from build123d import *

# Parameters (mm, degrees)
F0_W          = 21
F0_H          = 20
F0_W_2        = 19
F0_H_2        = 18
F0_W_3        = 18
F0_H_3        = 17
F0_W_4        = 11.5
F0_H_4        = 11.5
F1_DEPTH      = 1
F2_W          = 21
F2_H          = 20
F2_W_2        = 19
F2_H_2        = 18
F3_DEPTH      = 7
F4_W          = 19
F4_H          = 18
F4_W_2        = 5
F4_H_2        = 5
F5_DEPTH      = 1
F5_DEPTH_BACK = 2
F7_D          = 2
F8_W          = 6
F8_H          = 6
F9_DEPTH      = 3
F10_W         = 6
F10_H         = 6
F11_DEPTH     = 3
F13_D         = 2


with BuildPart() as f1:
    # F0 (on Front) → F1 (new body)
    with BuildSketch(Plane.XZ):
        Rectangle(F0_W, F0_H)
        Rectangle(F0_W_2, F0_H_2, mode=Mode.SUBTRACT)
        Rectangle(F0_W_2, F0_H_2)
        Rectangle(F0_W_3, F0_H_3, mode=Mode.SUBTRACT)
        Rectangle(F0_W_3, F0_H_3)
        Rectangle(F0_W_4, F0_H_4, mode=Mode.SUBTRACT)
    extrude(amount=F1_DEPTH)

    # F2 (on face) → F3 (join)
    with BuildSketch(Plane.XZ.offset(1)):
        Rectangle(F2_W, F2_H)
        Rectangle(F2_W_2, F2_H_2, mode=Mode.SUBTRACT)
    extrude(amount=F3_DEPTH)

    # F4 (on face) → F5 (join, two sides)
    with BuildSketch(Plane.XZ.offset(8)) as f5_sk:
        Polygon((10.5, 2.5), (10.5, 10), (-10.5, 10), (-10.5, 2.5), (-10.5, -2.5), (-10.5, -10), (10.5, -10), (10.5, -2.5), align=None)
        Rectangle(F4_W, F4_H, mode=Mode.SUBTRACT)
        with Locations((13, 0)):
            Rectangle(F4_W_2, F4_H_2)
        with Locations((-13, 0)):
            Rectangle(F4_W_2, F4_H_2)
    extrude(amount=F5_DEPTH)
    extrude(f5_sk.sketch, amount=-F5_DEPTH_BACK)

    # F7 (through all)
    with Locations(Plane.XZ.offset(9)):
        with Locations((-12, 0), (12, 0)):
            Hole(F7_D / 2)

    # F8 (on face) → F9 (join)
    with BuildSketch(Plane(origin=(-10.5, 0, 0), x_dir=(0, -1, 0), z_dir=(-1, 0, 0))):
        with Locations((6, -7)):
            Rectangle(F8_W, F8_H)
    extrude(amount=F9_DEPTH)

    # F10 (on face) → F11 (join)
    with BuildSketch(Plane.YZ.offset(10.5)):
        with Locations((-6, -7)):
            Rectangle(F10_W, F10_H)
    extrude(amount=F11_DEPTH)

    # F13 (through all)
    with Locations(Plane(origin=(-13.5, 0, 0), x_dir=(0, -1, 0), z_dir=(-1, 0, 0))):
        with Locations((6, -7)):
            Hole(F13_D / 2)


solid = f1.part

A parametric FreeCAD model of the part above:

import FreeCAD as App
import Part
import Sketcher

V = App.Vector

doc = App.newDocument("Part")
body = doc.addObject("PartDesign::Body", "Body")

# Sketch on XZ plane
sketch1 = body.newObject("Sketcher::SketchObject", "Sketch")
sketch1.AttachmentSupport = (doc.getObject("XZ_Plane"), [""])
sketch1.MapMode = "FlatFace"
sketch1.addGeometry(Part.LineSegment(V(-10.5, 10, 0), V(-10.5, -10, 0)), False)
sketch1.addGeometry(Part.LineSegment(V(-10.5, -10, 0), V(10.5, -10, 0)), False)
sketch1.addGeometry(Part.LineSegment(V(10.5, -10, 0), V(10.5, 10, 0)), False)
sketch1.addGeometry(Part.LineSegment(V(10.5, 10, 0), V(-10.5, 10, 0)), False)
sketch1.addGeometry(Part.LineSegment(V(5.75, -5.75, 0), V(-5.75, -5.75, 0)), False)
sketch1.addGeometry(Part.LineSegment(V(-5.75, -5.75, 0), V(-5.75, 5.75, 0)), False)
sketch1.addGeometry(Part.LineSegment(V(-5.75, 5.75, 0), V(5.75, 5.75, 0)), False)
sketch1.addGeometry(Part.LineSegment(V(5.75, 5.75, 0), V(5.75, -5.75, 0)), False)
sketch1.addConstraint(Sketcher.Constraint("Coincident", 0, 2, 1, 1))
sketch1.addConstraint(Sketcher.Constraint("Coincident", 1, 2, 2, 1))
sketch1.addConstraint(Sketcher.Constraint("Coincident", 2, 2, 3, 1))
sketch1.addConstraint(Sketcher.Constraint("Coincident", 3, 2, 0, 1))
sketch1.addConstraint(Sketcher.Constraint("Coincident", 4, 2, 5, 1))
sketch1.addConstraint(Sketcher.Constraint("Coincident", 5, 2, 6, 1))
sketch1.addConstraint(Sketcher.Constraint("Coincident", 6, 2, 7, 1))
sketch1.addConstraint(Sketcher.Constraint("Coincident", 7, 2, 4, 1))
sketch1.addConstraint(Sketcher.Constraint("Vertical", 0))
sketch1.addConstraint(Sketcher.Constraint("Horizontal", 1))
sketch1.addConstraint(Sketcher.Constraint("Vertical", 2))
sketch1.addConstraint(Sketcher.Constraint("Horizontal", 3))
sketch1.addConstraint(Sketcher.Constraint("Horizontal", 4))
sketch1.addConstraint(Sketcher.Constraint("Vertical", 5))
sketch1.addConstraint(Sketcher.Constraint("Horizontal", 6))
sketch1.addConstraint(Sketcher.Constraint("Vertical", 7))
sketch1.addConstraint(Sketcher.Constraint("Symmetric", 0, 2, 2, 2, -1, 1))
sketch1.addConstraint(Sketcher.Constraint("Symmetric", 4, 2, 6, 2, -1, 1))
sketch1.addConstraint(Sketcher.Constraint("Equal", 6, 5))
sketch1.addConstraint(Sketcher.Constraint("DistanceX", 1, 1, 1, 2, 21.0))
sketch1.addConstraint(Sketcher.Constraint("DistanceY", 0, 2, 0, 1, 20.0))
sketch1.addConstraint(Sketcher.Constraint("DistanceX", 4, 2, 4, 1, 11.5))
pad1 = body.newObject("PartDesign::Pad", "Pad")
pad1.Profile = sketch1
pad1.Length = 1

# Sketch on XZ plane
sketch2 = body.newObject("Sketcher::SketchObject", "Sketch001")
sketch2.AttachmentSupport = (doc.getObject("XZ_Plane"), [""])
sketch2.MapMode = "FlatFace"
sketch2.AttachmentOffset = App.Placement(V(0, 0, 1), App.Rotation())
sketch2.addGeometry(Part.LineSegment(V(-10.5, 10, 0), V(-10.5, -10, 0)), False)
sketch2.addGeometry(Part.LineSegment(V(-10.5, -10, 0), V(10.5, -10, 0)), False)
sketch2.addGeometry(Part.LineSegment(V(10.5, -10, 0), V(10.5, 10, 0)), False)
sketch2.addGeometry(Part.LineSegment(V(10.5, 10, 0), V(-10.5, 10, 0)), False)
sketch2.addGeometry(Part.LineSegment(V(9.5, -9, 0), V(-9.5, -9, 0)), False)
sketch2.addGeometry(Part.LineSegment(V(-9.5, -9, 0), V(-9.5, 9, 0)), False)
sketch2.addGeometry(Part.LineSegment(V(-9.5, 9, 0), V(9.5, 9, 0)), False)
sketch2.addGeometry(Part.LineSegment(V(9.5, 9, 0), V(9.5, -9, 0)), False)
sketch2.addConstraint(Sketcher.Constraint("Coincident", 0, 2, 1, 1))
sketch2.addConstraint(Sketcher.Constraint("Coincident", 1, 2, 2, 1))
sketch2.addConstraint(Sketcher.Constraint("Coincident", 2, 2, 3, 1))
sketch2.addConstraint(Sketcher.Constraint("Coincident", 3, 2, 0, 1))
sketch2.addConstraint(Sketcher.Constraint("Coincident", 4, 2, 5, 1))
sketch2.addConstraint(Sketcher.Constraint("Coincident", 5, 2, 6, 1))
sketch2.addConstraint(Sketcher.Constraint("Coincident", 6, 2, 7, 1))
sketch2.addConstraint(Sketcher.Constraint("Coincident", 7, 2, 4, 1))
sketch2.addConstraint(Sketcher.Constraint("Vertical", 0))
sketch2.addConstraint(Sketcher.Constraint("Horizontal", 1))
sketch2.addConstraint(Sketcher.Constraint("Vertical", 2))
sketch2.addConstraint(Sketcher.Constraint("Horizontal", 3))
sketch2.addConstraint(Sketcher.Constraint("Horizontal", 4))
sketch2.addConstraint(Sketcher.Constraint("Vertical", 5))
sketch2.addConstraint(Sketcher.Constraint("Horizontal", 6))
sketch2.addConstraint(Sketcher.Constraint("Vertical", 7))
sketch2.addConstraint(Sketcher.Constraint("Symmetric", 0, 2, 2, 2, -1, 1))
sketch2.addConstraint(Sketcher.Constraint("Symmetric", 4, 2, 6, 2, -1, 1))
sketch2.addConstraint(Sketcher.Constraint("DistanceX", 1, 1, 1, 2, 21.0))
sketch2.addConstraint(Sketcher.Constraint("DistanceX", 4, 2, 4, 1, 19.0))
sketch2.addConstraint(Sketcher.Constraint("DistanceY", 0, 2, 0, 1, 20.0))
sketch2.addConstraint(Sketcher.Constraint("DistanceY", 5, 1, 5, 2, 18.0))
pad2 = body.newObject("PartDesign::Pad", "Pad001")
pad2.Profile = sketch2
pad2.Length = 7

# Sketch on XZ plane
sketch3 = body.newObject("Sketcher::SketchObject", "Sketch002")
sketch3.AttachmentSupport = (doc.getObject("XZ_Plane"), [""])
sketch3.MapMode = "FlatFace"
sketch3.AttachmentOffset = App.Placement(V(0, 0, 8), App.Rotation())
sketch3.addGeometry(Part.LineSegment(V(10.5, 10, 0), V(-10.5, 10, 0)), False)
sketch3.addGeometry(Part.LineSegment(V(-10.5, 10, 0), V(-10.5, 2.5, 0)), False)
sketch3.addGeometry(Part.LineSegment(V(-10.5, 2.5, 0), V(-15.5, 2.5, 0)), False)
sketch3.addGeometry(Part.LineSegment(V(-15.5, 2.5, 0), V(-15.5, -2.5, 0)), False)
sketch3.addGeometry(Part.LineSegment(V(-15.5, -2.5, 0), V(-10.5, -2.5, 0)), False)
sketch3.addGeometry(Part.LineSegment(V(-10.5, -2.5, 0), V(-10.5, -10, 0)), False)
sketch3.addGeometry(Part.LineSegment(V(-10.5, -10, 0), V(10.5, -10, 0)), False)
sketch3.addGeometry(Part.LineSegment(V(10.5, -10, 0), V(10.5, -2.5, 0)), False)
sketch3.addGeometry(Part.LineSegment(V(10.5, -2.5, 0), V(15.5, -2.5, 0)), False)
sketch3.addGeometry(Part.LineSegment(V(15.5, -2.5, 0), V(15.5, 2.5, 0)), False)
sketch3.addGeometry(Part.LineSegment(V(15.5, 2.5, 0), V(10.5, 2.5, 0)), False)
sketch3.addGeometry(Part.LineSegment(V(10.5, 2.5, 0), V(10.5, 10, 0)), False)
sketch3.addGeometry(Part.LineSegment(V(9.5, -9, 0), V(-9.5, -9, 0)), False)
sketch3.addGeometry(Part.LineSegment(V(-9.5, -9, 0), V(-9.5, 9, 0)), False)
sketch3.addGeometry(Part.LineSegment(V(-9.5, 9, 0), V(9.5, 9, 0)), False)
sketch3.addGeometry(Part.LineSegment(V(9.5, 9, 0), V(9.5, -9, 0)), False)
sketch3.addConstraint(Sketcher.Constraint("Coincident", 0, 2, 1, 1))
sketch3.addConstraint(Sketcher.Constraint("Coincident", 1, 2, 2, 1))
sketch3.addConstraint(Sketcher.Constraint("Coincident", 2, 2, 3, 1))
sketch3.addConstraint(Sketcher.Constraint("Coincident", 3, 2, 4, 1))
sketch3.addConstraint(Sketcher.Constraint("Coincident", 4, 2, 5, 1))
sketch3.addConstraint(Sketcher.Constraint("Coincident", 5, 2, 6, 1))
sketch3.addConstraint(Sketcher.Constraint("Coincident", 6, 2, 7, 1))
sketch3.addConstraint(Sketcher.Constraint("Coincident", 7, 2, 8, 1))
sketch3.addConstraint(Sketcher.Constraint("Coincident", 8, 2, 9, 1))
sketch3.addConstraint(Sketcher.Constraint("Coincident", 9, 2, 10, 1))
sketch3.addConstraint(Sketcher.Constraint("Coincident", 10, 2, 11, 1))
sketch3.addConstraint(Sketcher.Constraint("Coincident", 11, 2, 0, 1))
sketch3.addConstraint(Sketcher.Constraint("Coincident", 12, 2, 13, 1))
sketch3.addConstraint(Sketcher.Constraint("Coincident", 13, 2, 14, 1))
sketch3.addConstraint(Sketcher.Constraint("Coincident", 14, 2, 15, 1))
sketch3.addConstraint(Sketcher.Constraint("Coincident", 15, 2, 12, 1))
sketch3.addConstraint(Sketcher.Constraint("Horizontal", 0))
sketch3.addConstraint(Sketcher.Constraint("Vertical", 1))
sketch3.addConstraint(Sketcher.Constraint("Horizontal", 2))
sketch3.addConstraint(Sketcher.Constraint("Vertical", 3))
sketch3.addConstraint(Sketcher.Constraint("Horizontal", 4))
sketch3.addConstraint(Sketcher.Constraint("Vertical", 5))
sketch3.addConstraint(Sketcher.Constraint("Horizontal", 6))
sketch3.addConstraint(Sketcher.Constraint("Vertical", 7))
sketch3.addConstraint(Sketcher.Constraint("Horizontal", 8))
sketch3.addConstraint(Sketcher.Constraint("Vertical", 9))
sketch3.addConstraint(Sketcher.Constraint("Horizontal", 10))
sketch3.addConstraint(Sketcher.Constraint("Vertical", 11))
sketch3.addConstraint(Sketcher.Constraint("Horizontal", 12))
sketch3.addConstraint(Sketcher.Constraint("Vertical", 13))
sketch3.addConstraint(Sketcher.Constraint("Horizontal", 14))
sketch3.addConstraint(Sketcher.Constraint("Vertical", 15))
sketch3.addConstraint(Sketcher.Constraint("Symmetric", 0, 2, 6, 2, -1, 1))
sketch3.addConstraint(Sketcher.Constraint("Symmetric", 2, 2, 8, 2, -1, 1))
sketch3.addConstraint(Sketcher.Constraint("Symmetric", 4, 2, 10, 2, -1, 1))
sketch3.addConstraint(Sketcher.Constraint("Symmetric", 12, 2, 14, 2, -1, 1))
sketch3.addConstraint(Sketcher.Constraint("Symmetric", 4, 2, 7, 2, -2))
sketch3.addConstraint(Sketcher.Constraint("Equal", 10, 3))
sketch3.addConstraint(Sketcher.Constraint("DistanceX", 0, 2, 0, 1, 21.0))
sketch3.addConstraint(Sketcher.Constraint("DistanceX", 2, 2, 2, 1, 5.0))
sketch3.addConstraint(Sketcher.Constraint("DistanceX", 12, 2, 12, 1, 19.0))
sketch3.addConstraint(Sketcher.Constraint("DistanceY", 13, 1, 13, 2, 18.0))
sketch3.addConstraint(Sketcher.Constraint("DistanceY", 1, 2, 1, 1, 7.5))
pad3 = body.newObject("PartDesign::Pad", "Pad002")
pad3.Profile = sketch3
pad3.Type = "TwoLengths"
pad3.Length = 1
pad3.Length2 = 2

# Sketch on XZ plane
sketch4 = body.newObject("Sketcher::SketchObject", "Sketch003")
sketch4.AttachmentSupport = (doc.getObject("XZ_Plane"), [""])
sketch4.MapMode = "FlatFace"
sketch4.AttachmentOffset = App.Placement(V(0, 0, 9), App.Rotation())
sketch4.addGeometry(Part.Circle(V(-12, 0, 0), V(0, 0, 1), 1), False)
sketch4.addGeometry(Part.Circle(V(12, 0, 0), V(0, 0, 1), 1), False)
sketch4.addConstraint(Sketcher.Constraint("Equal", 0, 1))
sketch4.addConstraint(Sketcher.Constraint("Symmetric", 0, 3, 1, 3, -1, 1))
sketch4.addConstraint(Sketcher.Constraint("PointOnObject", 0, 3, -1))
sketch4.addConstraint(Sketcher.Constraint("Diameter", 0, 2.0))
sketch4.addConstraint(Sketcher.Constraint("DistanceX", 0, 3, -1, 1, 12.0))
doc.recompute()
hole = body.newObject("PartDesign::Hole", "Hole")
hole.Profile = sketch4
hole.ThreadType = "None"
hole.Diameter = 2
hole.DepthType = "ThroughAll"

# Sketch on YZ plane
sketch5 = body.newObject("Sketcher::SketchObject", "Sketch004")
sketch5.AttachmentSupport = (doc.getObject("YZ_Plane"), [""])
sketch5.MapMode = "FlatFace"
sketch5.AttachmentOffset = App.Placement(V(0, 0, -10.5), App.Rotation())
sketch5.addGeometry(Part.LineSegment(V(-3, -4, 0), V(-3, -10, 0)), False)
sketch5.addGeometry(Part.LineSegment(V(-3, -10, 0), V(-9, -10, 0)), False)
sketch5.addGeometry(Part.LineSegment(V(-9, -10, 0), V(-9, -4, 0)), False)
sketch5.addGeometry(Part.LineSegment(V(-9, -4, 0), V(-3, -4, 0)), False)
sketch5.addConstraint(Sketcher.Constraint("Coincident", 0, 2, 1, 1))
sketch5.addConstraint(Sketcher.Constraint("Coincident", 1, 2, 2, 1))
sketch5.addConstraint(Sketcher.Constraint("Coincident", 2, 2, 3, 1))
sketch5.addConstraint(Sketcher.Constraint("Coincident", 3, 2, 0, 1))
sketch5.addConstraint(Sketcher.Constraint("Vertical", 0))
sketch5.addConstraint(Sketcher.Constraint("Horizontal", 1))
sketch5.addConstraint(Sketcher.Constraint("Vertical", 2))
sketch5.addConstraint(Sketcher.Constraint("Horizontal", 3))
sketch5.addConstraint(Sketcher.Constraint("Equal", 3, 0))
sketch5.addConstraint(Sketcher.Constraint("DistanceX", 1, 2, 1, 1, 6.0))
sketch5.addConstraint(Sketcher.Constraint("DistanceX", 0, 2, -1, 1, 3.0))
sketch5.addConstraint(Sketcher.Constraint("DistanceY", 0, 2, -1, 1, 10.0))
pad4 = body.newObject("PartDesign::Pad", "Pad003")
pad4.Profile = sketch5
pad4.Length = 3
pad4.Reversed = True

# Sketch on YZ plane
sketch6 = body.newObject("Sketcher::SketchObject", "Sketch005")
sketch6.AttachmentSupport = (doc.getObject("YZ_Plane"), [""])
sketch6.MapMode = "FlatFace"
sketch6.AttachmentOffset = App.Placement(V(0, 0, 10.5), App.Rotation())
sketch6.addGeometry(Part.LineSegment(V(-9, -4, 0), V(-9, -10, 0)), False)
sketch6.addGeometry(Part.LineSegment(V(-9, -10, 0), V(-3, -10, 0)), False)
sketch6.addGeometry(Part.LineSegment(V(-3, -10, 0), V(-3, -4, 0)), False)
sketch6.addGeometry(Part.LineSegment(V(-3, -4, 0), V(-9, -4, 0)), False)
sketch6.addConstraint(Sketcher.Constraint("Coincident", 0, 2, 1, 1))
sketch6.addConstraint(Sketcher.Constraint("Coincident", 1, 2, 2, 1))
sketch6.addConstraint(Sketcher.Constraint("Coincident", 2, 2, 3, 1))
sketch6.addConstraint(Sketcher.Constraint("Coincident", 3, 2, 0, 1))
sketch6.addConstraint(Sketcher.Constraint("Vertical", 0))
sketch6.addConstraint(Sketcher.Constraint("Horizontal", 1))
sketch6.addConstraint(Sketcher.Constraint("Vertical", 2))
sketch6.addConstraint(Sketcher.Constraint("Horizontal", 3))
sketch6.addConstraint(Sketcher.Constraint("Equal", 3, 0))
sketch6.addConstraint(Sketcher.Constraint("DistanceX", 1, 1, 1, 2, 6.0))
sketch6.addConstraint(Sketcher.Constraint("DistanceX", 0, 2, -1, 1, 9.0))
sketch6.addConstraint(Sketcher.Constraint("DistanceY", 0, 2, -1, 1, 10.0))
pad5 = body.newObject("PartDesign::Pad", "Pad004")
pad5.Profile = sketch6
pad5.Length = 3

# Sketch on YZ plane
sketch7 = body.newObject("Sketcher::SketchObject", "Sketch006")
sketch7.AttachmentSupport = (doc.getObject("YZ_Plane"), [""])
sketch7.MapMode = "FlatFace"
sketch7.AttachmentOffset = App.Placement(V(0, 0, -13.5), App.Rotation())
sketch7.addGeometry(Part.Circle(V(-6, -7, 0), V(0, 0, 1), 1), False)
sketch7.addConstraint(Sketcher.Constraint("Diameter", 0, 2.0))
sketch7.addConstraint(Sketcher.Constraint("DistanceX", 0, 3, -1, 1, 6.0))
sketch7.addConstraint(Sketcher.Constraint("DistanceY", 0, 3, -1, 1, 7.0))
doc.recompute()
hole2 = body.newObject("PartDesign::Hole", "Hole001")
hole2.Profile = sketch7
hole2.ThreadType = "None"
hole2.Diameter = 2
hole2.DepthType = "ThroughAll"
hole2.Reversed = True

doc.recompute()
